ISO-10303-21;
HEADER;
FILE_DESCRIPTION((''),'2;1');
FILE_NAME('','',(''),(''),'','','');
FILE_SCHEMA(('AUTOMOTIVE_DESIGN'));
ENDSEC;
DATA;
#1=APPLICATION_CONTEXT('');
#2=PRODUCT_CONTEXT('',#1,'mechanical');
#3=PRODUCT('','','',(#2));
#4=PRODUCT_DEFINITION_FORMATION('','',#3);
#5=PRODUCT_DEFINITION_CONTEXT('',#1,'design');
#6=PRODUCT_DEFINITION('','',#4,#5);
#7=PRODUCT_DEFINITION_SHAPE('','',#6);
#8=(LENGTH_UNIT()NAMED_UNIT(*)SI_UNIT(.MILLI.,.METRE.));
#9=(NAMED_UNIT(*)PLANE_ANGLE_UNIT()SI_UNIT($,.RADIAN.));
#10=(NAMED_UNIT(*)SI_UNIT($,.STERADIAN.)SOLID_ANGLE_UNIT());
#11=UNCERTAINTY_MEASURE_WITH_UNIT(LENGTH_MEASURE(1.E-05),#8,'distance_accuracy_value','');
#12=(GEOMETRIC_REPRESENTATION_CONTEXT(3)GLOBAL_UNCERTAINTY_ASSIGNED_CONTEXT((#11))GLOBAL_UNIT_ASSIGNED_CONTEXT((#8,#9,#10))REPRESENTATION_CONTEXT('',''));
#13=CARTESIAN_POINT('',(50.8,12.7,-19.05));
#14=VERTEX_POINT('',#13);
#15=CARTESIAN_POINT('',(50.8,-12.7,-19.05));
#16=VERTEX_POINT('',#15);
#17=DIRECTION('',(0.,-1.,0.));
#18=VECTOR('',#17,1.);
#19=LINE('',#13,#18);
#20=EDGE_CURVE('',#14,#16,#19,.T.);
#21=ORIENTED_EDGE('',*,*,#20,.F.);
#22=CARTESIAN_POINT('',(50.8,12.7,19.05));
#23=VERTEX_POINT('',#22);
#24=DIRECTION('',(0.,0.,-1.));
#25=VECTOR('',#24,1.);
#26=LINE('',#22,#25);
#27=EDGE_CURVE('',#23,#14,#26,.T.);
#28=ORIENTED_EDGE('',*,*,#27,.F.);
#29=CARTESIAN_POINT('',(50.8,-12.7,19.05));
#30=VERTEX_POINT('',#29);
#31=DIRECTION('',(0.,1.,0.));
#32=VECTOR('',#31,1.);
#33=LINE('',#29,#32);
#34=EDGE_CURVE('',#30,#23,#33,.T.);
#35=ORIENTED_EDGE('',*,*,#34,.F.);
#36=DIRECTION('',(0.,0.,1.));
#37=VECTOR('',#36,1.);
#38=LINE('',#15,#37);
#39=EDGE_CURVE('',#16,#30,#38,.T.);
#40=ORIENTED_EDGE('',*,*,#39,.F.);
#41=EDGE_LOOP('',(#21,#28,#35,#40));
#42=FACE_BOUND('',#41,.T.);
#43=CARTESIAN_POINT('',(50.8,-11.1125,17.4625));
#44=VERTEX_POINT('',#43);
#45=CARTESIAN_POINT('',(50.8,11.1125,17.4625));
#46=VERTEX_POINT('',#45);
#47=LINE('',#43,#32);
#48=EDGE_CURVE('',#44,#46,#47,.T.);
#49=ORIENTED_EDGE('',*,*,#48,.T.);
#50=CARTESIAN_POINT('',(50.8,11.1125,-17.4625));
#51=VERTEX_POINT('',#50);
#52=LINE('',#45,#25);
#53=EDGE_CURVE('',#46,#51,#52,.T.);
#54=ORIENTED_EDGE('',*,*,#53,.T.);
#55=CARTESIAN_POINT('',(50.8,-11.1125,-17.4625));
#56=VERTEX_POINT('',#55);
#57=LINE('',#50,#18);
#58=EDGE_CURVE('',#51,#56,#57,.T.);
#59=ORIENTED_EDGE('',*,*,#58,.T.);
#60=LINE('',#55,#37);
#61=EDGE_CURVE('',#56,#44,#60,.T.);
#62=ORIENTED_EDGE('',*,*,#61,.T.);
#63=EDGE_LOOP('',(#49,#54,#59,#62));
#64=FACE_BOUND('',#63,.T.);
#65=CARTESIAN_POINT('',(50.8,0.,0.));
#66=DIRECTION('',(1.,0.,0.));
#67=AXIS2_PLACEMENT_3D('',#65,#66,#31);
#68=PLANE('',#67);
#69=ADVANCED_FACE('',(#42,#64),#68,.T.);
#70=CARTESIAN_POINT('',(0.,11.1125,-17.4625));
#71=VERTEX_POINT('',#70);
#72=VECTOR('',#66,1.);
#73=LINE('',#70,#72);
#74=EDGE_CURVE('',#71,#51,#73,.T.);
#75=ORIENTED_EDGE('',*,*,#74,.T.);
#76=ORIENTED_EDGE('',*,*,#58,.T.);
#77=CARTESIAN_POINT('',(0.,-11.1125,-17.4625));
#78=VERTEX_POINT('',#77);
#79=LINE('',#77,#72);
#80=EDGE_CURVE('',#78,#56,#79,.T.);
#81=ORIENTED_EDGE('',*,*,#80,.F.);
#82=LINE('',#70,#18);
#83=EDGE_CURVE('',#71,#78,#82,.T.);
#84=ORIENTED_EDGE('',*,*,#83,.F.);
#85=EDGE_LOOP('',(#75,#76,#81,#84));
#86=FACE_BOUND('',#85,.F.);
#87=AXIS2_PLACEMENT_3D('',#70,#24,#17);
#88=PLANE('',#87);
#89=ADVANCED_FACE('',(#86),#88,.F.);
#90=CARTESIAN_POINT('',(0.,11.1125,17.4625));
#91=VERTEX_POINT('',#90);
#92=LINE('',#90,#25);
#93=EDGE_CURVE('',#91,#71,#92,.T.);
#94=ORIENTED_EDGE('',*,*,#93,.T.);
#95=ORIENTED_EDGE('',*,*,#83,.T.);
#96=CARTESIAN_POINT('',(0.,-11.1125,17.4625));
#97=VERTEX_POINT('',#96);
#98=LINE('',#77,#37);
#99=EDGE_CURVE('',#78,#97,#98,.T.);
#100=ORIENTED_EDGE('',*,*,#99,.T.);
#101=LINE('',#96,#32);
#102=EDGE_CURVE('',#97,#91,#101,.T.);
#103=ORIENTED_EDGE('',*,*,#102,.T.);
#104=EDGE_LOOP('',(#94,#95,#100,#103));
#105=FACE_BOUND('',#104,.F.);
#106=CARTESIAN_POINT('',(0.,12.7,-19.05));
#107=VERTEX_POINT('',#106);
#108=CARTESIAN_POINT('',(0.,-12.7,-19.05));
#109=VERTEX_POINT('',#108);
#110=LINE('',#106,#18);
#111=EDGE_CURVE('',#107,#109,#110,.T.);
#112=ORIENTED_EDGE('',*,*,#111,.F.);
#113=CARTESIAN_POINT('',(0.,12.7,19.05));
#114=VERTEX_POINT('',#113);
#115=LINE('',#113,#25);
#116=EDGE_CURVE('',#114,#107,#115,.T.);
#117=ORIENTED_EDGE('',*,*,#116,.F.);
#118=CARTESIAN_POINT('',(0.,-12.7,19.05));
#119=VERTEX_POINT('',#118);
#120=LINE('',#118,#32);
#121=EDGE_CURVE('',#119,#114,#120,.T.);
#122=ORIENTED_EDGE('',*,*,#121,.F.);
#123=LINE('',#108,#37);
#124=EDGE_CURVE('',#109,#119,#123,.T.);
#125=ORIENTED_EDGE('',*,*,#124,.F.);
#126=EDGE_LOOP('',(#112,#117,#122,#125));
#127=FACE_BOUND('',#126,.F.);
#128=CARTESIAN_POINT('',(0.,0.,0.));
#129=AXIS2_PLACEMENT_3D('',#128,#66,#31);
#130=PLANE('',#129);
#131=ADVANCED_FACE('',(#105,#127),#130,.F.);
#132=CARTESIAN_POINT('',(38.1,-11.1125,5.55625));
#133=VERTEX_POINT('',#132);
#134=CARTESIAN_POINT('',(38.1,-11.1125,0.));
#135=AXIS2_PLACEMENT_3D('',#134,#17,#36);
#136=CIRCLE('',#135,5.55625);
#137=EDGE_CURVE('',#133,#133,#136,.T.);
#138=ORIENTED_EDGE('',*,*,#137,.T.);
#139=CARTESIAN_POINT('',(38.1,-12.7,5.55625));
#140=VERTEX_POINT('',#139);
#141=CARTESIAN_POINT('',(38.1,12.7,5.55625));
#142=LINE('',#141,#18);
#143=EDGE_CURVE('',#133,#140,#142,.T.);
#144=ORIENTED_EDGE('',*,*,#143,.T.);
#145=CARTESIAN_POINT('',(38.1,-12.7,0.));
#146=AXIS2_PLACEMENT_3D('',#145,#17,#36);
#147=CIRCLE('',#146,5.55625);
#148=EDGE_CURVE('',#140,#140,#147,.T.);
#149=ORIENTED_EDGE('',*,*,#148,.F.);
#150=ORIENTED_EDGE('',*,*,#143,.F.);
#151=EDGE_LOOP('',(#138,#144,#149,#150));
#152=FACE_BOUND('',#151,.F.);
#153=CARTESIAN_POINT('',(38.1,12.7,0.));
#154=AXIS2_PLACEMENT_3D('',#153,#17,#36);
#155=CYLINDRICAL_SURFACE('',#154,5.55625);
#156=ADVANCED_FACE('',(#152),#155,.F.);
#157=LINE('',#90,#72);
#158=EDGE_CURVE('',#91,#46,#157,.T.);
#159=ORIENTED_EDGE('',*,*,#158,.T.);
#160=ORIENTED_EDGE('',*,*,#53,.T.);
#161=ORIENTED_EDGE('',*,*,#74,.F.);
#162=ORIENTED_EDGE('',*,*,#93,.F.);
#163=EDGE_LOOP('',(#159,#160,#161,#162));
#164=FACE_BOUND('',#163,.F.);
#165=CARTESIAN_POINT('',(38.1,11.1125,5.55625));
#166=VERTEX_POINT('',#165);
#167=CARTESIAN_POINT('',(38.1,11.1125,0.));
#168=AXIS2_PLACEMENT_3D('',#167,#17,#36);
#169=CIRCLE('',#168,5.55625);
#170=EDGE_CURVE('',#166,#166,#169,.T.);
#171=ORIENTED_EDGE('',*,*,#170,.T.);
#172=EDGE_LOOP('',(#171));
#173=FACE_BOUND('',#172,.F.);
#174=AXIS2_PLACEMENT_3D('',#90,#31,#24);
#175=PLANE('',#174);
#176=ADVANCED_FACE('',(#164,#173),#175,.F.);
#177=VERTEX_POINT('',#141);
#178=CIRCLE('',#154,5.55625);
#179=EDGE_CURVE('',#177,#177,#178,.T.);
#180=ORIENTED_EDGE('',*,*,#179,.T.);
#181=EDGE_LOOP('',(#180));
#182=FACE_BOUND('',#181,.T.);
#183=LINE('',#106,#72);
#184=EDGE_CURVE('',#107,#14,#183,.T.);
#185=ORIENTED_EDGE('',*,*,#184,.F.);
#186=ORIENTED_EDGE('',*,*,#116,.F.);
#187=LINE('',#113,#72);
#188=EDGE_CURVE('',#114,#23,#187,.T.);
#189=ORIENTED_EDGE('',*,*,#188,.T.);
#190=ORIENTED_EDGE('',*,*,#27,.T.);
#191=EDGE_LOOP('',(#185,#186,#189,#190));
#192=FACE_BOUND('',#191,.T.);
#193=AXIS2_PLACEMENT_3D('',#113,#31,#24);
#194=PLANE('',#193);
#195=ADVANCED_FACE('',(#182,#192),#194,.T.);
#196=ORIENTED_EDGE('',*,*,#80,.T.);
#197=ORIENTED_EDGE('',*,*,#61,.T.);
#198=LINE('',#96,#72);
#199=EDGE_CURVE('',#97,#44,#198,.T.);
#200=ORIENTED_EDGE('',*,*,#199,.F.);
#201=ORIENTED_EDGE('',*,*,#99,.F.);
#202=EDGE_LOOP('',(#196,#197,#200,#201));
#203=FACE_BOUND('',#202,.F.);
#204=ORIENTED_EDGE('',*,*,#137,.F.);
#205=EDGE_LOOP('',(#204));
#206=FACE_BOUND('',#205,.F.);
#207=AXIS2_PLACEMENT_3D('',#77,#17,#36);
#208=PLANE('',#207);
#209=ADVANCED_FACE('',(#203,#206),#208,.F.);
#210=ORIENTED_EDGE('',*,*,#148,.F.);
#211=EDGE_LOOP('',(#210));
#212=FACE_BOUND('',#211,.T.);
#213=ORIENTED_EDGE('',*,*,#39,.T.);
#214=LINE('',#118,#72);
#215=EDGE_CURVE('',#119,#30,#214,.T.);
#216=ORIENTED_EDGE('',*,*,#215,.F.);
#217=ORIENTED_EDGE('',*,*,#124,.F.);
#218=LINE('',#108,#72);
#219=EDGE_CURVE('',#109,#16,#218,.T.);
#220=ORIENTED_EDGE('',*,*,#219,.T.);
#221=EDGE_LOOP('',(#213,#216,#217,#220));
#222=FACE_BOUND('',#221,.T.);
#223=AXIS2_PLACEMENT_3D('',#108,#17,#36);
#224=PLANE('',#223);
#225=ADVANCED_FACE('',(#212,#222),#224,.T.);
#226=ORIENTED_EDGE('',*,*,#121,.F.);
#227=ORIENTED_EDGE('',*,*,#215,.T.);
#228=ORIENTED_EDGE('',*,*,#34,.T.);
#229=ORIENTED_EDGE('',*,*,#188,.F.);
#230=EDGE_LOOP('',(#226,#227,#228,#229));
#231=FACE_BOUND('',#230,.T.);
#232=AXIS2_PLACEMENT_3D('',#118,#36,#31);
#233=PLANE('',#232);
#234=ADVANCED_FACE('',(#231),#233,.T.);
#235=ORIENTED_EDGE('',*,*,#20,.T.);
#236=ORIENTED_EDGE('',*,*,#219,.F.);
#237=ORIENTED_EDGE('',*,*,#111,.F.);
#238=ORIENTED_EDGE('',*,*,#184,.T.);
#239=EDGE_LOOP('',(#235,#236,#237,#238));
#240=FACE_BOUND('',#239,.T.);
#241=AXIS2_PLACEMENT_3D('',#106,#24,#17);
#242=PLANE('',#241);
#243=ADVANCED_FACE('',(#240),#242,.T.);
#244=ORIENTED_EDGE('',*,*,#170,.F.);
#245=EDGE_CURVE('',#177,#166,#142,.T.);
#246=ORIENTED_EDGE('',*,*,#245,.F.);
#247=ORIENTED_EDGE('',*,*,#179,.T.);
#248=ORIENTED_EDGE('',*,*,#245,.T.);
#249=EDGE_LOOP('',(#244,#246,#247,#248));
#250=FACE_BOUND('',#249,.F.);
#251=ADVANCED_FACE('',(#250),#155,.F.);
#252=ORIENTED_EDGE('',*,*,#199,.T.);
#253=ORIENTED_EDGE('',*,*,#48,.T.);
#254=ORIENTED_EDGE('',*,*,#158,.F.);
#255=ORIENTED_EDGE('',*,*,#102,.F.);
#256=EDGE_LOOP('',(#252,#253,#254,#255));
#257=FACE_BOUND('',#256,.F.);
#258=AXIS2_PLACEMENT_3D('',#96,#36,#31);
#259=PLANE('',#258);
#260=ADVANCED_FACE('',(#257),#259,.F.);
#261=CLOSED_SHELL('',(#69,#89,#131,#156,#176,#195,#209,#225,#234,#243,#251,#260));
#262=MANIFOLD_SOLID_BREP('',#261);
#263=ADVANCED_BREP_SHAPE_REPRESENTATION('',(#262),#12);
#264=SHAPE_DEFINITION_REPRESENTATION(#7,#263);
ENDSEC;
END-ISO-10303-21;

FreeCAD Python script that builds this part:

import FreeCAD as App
import Part
import Sketcher
Q = App.Units.Quantity


def add_polygon(sketch, points):
    """Adds a closed chain of lines whose ends are joined by coincident constraints."""
    first, n = sketch.GeometryCount, len(points)
    for a, b in zip(points, points[1:] + points[:1]):
        sketch.addGeometry(Part.LineSegment(App.Vector(*a, 0), App.Vector(*b, 0)), False)
    for i in range(n):
        sketch.addConstraint(Sketcher.Constraint("Coincident", first + i, 2, first + (i + 1) % n, 1))

doc = App.newDocument("Part")
body = doc.addObject("PartDesign::Body", "Body")

# Sketch on YZ plane
sketch1 = doc.addObject("Sketcher::SketchObject", "Sketch")
body.addObject(sketch1)
sketch1.AttachmentSupport = (doc.YZ_Plane, [""])
sketch1.MapMode = "FlatFace"
add_polygon(sketch1, [(13, 19), (-13, 19), (-13, -19), (13, -19)])  # lines 0-3
add_polygon(sketch1, [(-11, -17), (-11, 17), (11, 17), (11, -17)])  # lines 4-7
sketch1.addConstraint([
    Sketcher.Constraint("Horizontal", 0),
    Sketcher.Constraint("Vertical", 1),
    Sketcher.Constraint("Horizontal", 2),
    Sketcher.Constraint("Vertical", 3),
    Sketcher.Constraint("Vertical", 4),
    Sketcher.Constraint("Horizontal", 5),
    Sketcher.Constraint("Vertical", 6),
    Sketcher.Constraint("Horizontal", 7),
    Sketcher.Constraint("Symmetric", 0, 2, 2, 2, -1, 1),
    Sketcher.Constraint("Symmetric", 4, 2, 6, 2, -1, 1),
    Sketcher.Constraint("DistanceX", 0, 2, 0, 1, Q("1 in")),
    Sketcher.Constraint("DistanceY", 1, 2, 1, 1, Q("1.5 in")),
    Sketcher.Constraint("DistanceX", 0, 2, 4, 2, Q("0.0625 in")),
    Sketcher.Constraint("DistanceY", 4, 2, 0, 2, Q("0.0625 in")),
])
pad1 = doc.addObject("PartDesign::Pad", "Pad")
body.addObject(pad1)
pad1.Profile = sketch1
pad1.Length = Q("2 in")

# Sketch on XZ plane
sketch2 = doc.addObject("Sketcher::SketchObject", "Sketch001")
body.addObject(sketch2)
sketch2.AttachmentSupport = (doc.XZ_Plane, [""])
sketch2.MapMode = "FlatFace"
sketch2.AttachmentOffset = App.Placement(App.Vector(0, 0, -0.5 * 25.4), App.Rotation())
sketch2.addGeometry(Part.Circle(App.Vector(38, 0, 0), App.Vector(0, 0, 1), 6), False)
sketch2.addConstraint([
    Sketcher.Constraint("PointOnObject", 0, 3, -1),
    Sketcher.Constraint("Diameter", 0, Q("0.4375 in")),
    Sketcher.Constraint("DistanceX", -1, 1, 0, 3, Q("1.5 in")),
])
doc.recompute()
hole = doc.addObject("PartDesign::Hole", "Hole")
body.addObject(hole)
hole.Profile = sketch2
hole.ThreadType = "None"
hole.Diameter = Q("0.4375 in")
hole.DepthType = "ThroughAll"
hole.Reversed = True

doc.recompute()
